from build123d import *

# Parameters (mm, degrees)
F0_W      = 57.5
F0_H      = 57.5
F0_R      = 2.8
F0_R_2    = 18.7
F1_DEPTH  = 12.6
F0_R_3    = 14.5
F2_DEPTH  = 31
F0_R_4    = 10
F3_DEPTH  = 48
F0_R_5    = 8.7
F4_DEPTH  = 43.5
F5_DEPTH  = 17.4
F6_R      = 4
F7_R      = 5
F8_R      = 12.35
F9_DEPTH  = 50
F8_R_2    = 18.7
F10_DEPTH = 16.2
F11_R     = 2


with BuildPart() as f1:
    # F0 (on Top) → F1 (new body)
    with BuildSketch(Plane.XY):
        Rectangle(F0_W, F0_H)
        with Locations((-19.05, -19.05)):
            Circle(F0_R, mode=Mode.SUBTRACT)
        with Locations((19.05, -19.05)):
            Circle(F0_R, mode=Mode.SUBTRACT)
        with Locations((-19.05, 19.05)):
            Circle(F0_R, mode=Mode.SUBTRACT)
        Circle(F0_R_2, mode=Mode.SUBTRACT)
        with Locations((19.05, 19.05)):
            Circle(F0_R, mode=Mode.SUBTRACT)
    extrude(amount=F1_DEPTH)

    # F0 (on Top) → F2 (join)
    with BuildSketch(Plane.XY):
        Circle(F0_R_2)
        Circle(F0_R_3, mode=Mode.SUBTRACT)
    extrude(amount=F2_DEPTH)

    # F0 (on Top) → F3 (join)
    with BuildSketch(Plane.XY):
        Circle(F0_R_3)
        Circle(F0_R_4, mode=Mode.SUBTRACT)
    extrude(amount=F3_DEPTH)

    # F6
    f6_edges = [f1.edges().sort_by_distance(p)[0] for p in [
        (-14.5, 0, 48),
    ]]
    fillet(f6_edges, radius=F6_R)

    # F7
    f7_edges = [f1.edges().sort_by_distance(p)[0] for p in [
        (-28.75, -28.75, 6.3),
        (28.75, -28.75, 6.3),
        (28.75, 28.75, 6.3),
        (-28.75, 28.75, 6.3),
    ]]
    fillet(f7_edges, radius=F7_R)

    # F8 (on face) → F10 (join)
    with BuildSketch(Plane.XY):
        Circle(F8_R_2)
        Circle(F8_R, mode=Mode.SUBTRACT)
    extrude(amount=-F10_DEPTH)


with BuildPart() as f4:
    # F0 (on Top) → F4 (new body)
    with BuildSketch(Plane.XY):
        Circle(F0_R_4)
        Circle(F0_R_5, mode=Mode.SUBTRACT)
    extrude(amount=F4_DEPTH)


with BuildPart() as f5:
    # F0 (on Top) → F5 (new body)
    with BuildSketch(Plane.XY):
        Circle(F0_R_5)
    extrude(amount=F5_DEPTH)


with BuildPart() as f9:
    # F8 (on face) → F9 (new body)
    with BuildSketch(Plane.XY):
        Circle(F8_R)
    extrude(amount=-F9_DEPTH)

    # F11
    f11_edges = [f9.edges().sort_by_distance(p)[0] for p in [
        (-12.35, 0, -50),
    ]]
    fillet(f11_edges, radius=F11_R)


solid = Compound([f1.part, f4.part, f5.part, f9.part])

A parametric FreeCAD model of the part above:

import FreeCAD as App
import Part
import Sketcher

V = App.Vector
Q = App.Units.Quantity


def edges_at(feature, points):
    """Names of the edges that pass closest to the given points."""
    edges = feature.Shape.Edges
    near = lambda p: min(range(len(edges)), key=lambda i: edges[i].distToShape(Part.Vertex(*p))[0])
    return sorted({f"Edge{near(p) + 1}" for p in points})


def add_polygon(sketch, points):
    """Adds a closed chain of lines whose ends are joined by coincident constraints."""
    first, n = sketch.GeometryCount, len(points)
    for a, b in zip(points, points[1:] + points[:1]):
        sketch.addGeometry(Part.LineSegment(App.Vector(*a, 0), App.Vector(*b, 0)), False)
    for i in range(n):
        sketch.addConstraint(Sketcher.Constraint("Coincident", first + i, 2, first + (i + 1) % n, 1))

doc = App.newDocument("Part")
body = doc.addObject("PartDesign::Body", "Body")

sketch1 = doc.addObject("Sketcher::SketchObject", "Sketch")
body.addObject(sketch1)
sketch1.AttachmentSupport = (doc.XY_Plane, [""])
sketch1.MapMode = "FlatFace"
add_polygon(sketch1, [(-28.8, 28.8), (-28.8, -28.8), (28.8, -28.8), (28.8, 28.8)])
sketch1.addGeometry(Part.Circle(V(-19.1, -19.1, 0), V(0, 0, 1), 2.8), False)
sketch1.addGeometry(Part.Circle(V(19.1, -19.1, 0), V(0, 0, 1), 2.8), False)
sketch1.addGeometry(Part.Circle(V(-19.1, 19.1, 0), V(0, 0, 1), 2.8), False)
sketch1.addGeometry(Part.Circle(V(0, 0, 0), V(0, 0, 1), 18.7), False)
sketch1.addGeometry(Part.Circle(V(19.1, 19.1, 0), V(0, 0, 1), 2.8), False)
sketch1.addConstraint(Sketcher.Constraint("Vertical", 0))
sketch1.addConstraint(Sketcher.Constraint("Horizontal", 1))
sketch1.addConstraint(Sketcher.Constraint("Vertical", 2))
sketch1.addConstraint(Sketcher.Constraint("Horizontal", 3))
sketch1.addConstraint(Sketcher.Constraint("Coincident", 7, 3, -1, 1))
sketch1.addConstraint(Sketcher.Constraint("Equal", 4, 5))
sketch1.addConstraint(Sketcher.Constraint("Equal", 5, 6))
sketch1.addConstraint(Sketcher.Constraint("Equal", 6, 8))
sketch1.addConstraint(Sketcher.Constraint("Symmetric", 5, 3, 6, 3, -1, 1))
sketch1.addConstraint(Sketcher.Constraint("Symmetric", 4, 3, 8, 3, -1, 1))
sketch1.addConstraint(Sketcher.Constraint("Symmetric", 0, 2, 2, 2, -1, 1))
sketch1.addConstraint(Sketcher.Constraint("Symmetric", 4, 3, 5, 3, -2))
sketch1.addConstraint(Sketcher.Constraint("Equal", 3, 0))
sketch1.addConstraint(Sketcher.Constraint("Diameter", 4, Q("5.6 mm")))
sketch1.addConstraint(Sketcher.Constraint("Diameter", 7, Q("37.4 mm")))
sketch1.addConstraint(Sketcher.Constraint("DistanceX", 1, 1, 1, 2, Q("57.5 mm")))
sketch1.addConstraint(Sketcher.Constraint("DistanceX", 4, 3, 5, 3, Q("38.1 mm")))
sketch1.addConstraint(Sketcher.Constraint("DistanceY", 4, 3, 6, 3, Q("38.1 mm")))
pad1 = doc.addObject("PartDesign::Pad", "Pad")
body.addObject(pad1)
pad1.Profile = sketch1
pad1.Length = 12.6

sketch2 = doc.addObject("Sketcher::SketchObject", "Sketch001")
body.addObject(sketch2)
sketch2.AttachmentSupport = (doc.XY_Plane, [""])
sketch2.MapMode = "FlatFace"
sketch2.addGeometry(Part.Circle(V(0, 0, 0), V(0, 0, 1), 19), False)
sketch2.addGeometry(Part.Circle(V(0, 0, 0), V(0, 0, 1), 14), False)
sketch2.addConstraint(Sketcher.Constraint("Coincident", 0, 3, -1, 1))
sketch2.addConstraint(Sketcher.Constraint("Coincident", 1, 3, -1, 1))
sketch2.addConstraint(Sketcher.Constraint("Diameter", 1, Q("29 mm")))
sketch2.addConstraint(Sketcher.Constraint("Diameter", 0, Q("37.4 mm")))
pad2 = doc.addObject("PartDesign::Pad", "Pad001")
body.addObject(pad2)
pad2.Profile = sketch2
pad2.Length = 31

sketch3 = doc.addObject("Sketcher::SketchObject", "Sketch002")
body.addObject(sketch3)
sketch3.AttachmentSupport = (doc.XY_Plane, [""])
sketch3.MapMode = "FlatFace"
sketch3.addGeometry(Part.Circle(V(0, 0, 0), V(0, 0, 1), 14), False)
sketch3.addGeometry(Part.Circle(V(0, 0, 0), V(0, 0, 1), 10), False)
sketch3.addConstraint(Sketcher.Constraint("Coincident", 0, 3, -1, 1))
sketch3.addConstraint(Sketcher.Constraint("Coincident", 1, 3, -1, 1))
sketch3.addConstraint(Sketcher.Constraint("Diameter", 0, Q("29 mm")))
sketch3.addConstraint(Sketcher.Constraint("Diameter", 1, Q("20 mm")))
pad3 = doc.addObject("PartDesign::Pad", "Pad002")
body.addObject(pad3)
pad3.Profile = sketch3
pad3.Length = 48
doc.recompute()

fillet = doc.addObject("PartDesign::Fillet", "Fillet")
body.addObject(fillet)
fillet.Base = (pad3, edges_at(pad3, [(-14.5, 0, 48)]))
fillet.Radius = 4
doc.recompute()

fillet2 = doc.addObject("PartDesign::Fillet", "Fillet001")
body.addObject(fillet2)
fillet2.Base = (fillet, edges_at(fillet, [
    (-28.75, -28.75, 6.3),
    (28.75, -28.75, 6.3),
    (28.75, 28.75, 6.3),
    (-28.75, 28.75, 6.3),
]))
fillet2.Radius = 5

sketch4 = doc.addObject("Sketcher::SketchObject", "Sketch003")
body.addObject(sketch4)
sketch4.AttachmentSupport = (doc.XY_Plane, [""])
sketch4.MapMode = "FlatFace"
sketch4.addGeometry(Part.Circle(V(0, 0, 0), V(0, 0, 1), 19), False)
sketch4.addGeometry(Part.Circle(V(0, 0, 0), V(0, 0, 1), 12), False)
sketch4.addConstraint(Sketcher.Constraint("Coincident", 0, 3, -1, 1))
sketch4.addConstraint(Sketcher.Constraint("Coincident", 1, 3, -1, 1))
sketch4.addConstraint(Sketcher.Constraint("Diameter", 0, Q("37.4 mm")))
sketch4.addConstraint(Sketcher.Constraint("Diameter", 1, Q("24.7 mm")))
pad4 = doc.addObject("PartDesign::Pad", "Pad003")
body.addObject(pad4)
pad4.Profile = sketch4
pad4.Length = 16.2
pad4.Reversed = True
body2 = doc.addObject("PartDesign::Body", "Body001")

sketch5 = doc.addObject("Sketcher::SketchObject", "Sketch004")
body2.addObject(sketch5)
sketch5.AttachmentSupport = (doc.getObject("XY_Plane001"), [""])
sketch5.MapMode = "FlatFace"
sketch5.addGeometry(Part.Circle(V(0, 0, 0), V(0, 0, 1), 10), False)
sketch5.addGeometry(Part.Circle(V(0, 0, 0), V(0, 0, 1), 9), False)
sketch5.addConstraint(Sketcher.Constraint("Coincident", 0, 3, -1, 1))
sketch5.addConstraint(Sketcher.Constraint("Coincident", 1, 3, -1, 1))
sketch5.addConstraint(Sketcher.Constraint("Diameter", 0, Q("20 mm")))
sketch5.addConstraint(Sketcher.Constraint("Diameter", 1, Q("17.4 mm")))
pad5 = doc.addObject("PartDesign::Pad", "Pad004")
body2.addObject(pad5)
pad5.Profile = sketch5
pad5.Length = 43.5
body3 = doc.addObject("PartDesign::Body", "Body002")

sketch6 = doc.addObject("Sketcher::SketchObject", "Sketch005")
body3.addObject(sketch6)
sketch6.AttachmentSupport = (doc.getObject("XY_Plane002"), [""])
sketch6.MapMode = "FlatFace"
sketch6.addGeometry(Part.Circle(V(0, 0, 0), V(0, 0, 1), 9), False)
sketch6.addConstraint(Sketcher.Constraint("Coincident", 0, 3, -1, 1))
sketch6.addConstraint(Sketcher.Constraint("Diameter", 0, Q("17.4 mm")))
pad6 = doc.addObject("PartDesign::Pad", "Pad005")
body3.addObject(pad6)
pad6.Profile = sketch6
pad6.Length = 17.4
body4 = doc.addObject("PartDesign::Body", "Body003")

sketch7 = doc.addObject("Sketcher::SketchObject", "Sketch006")
body4.addObject(sketch7)
sketch7.AttachmentSupport = (doc.getObject("XY_Plane003"), [""])
sketch7.MapMode = "FlatFace"
sketch7.addGeometry(Part.Circle(V(0, 0, 0), V(0, 0, 1), 12), False)
sketch7.addConstraint(Sketcher.Constraint("Coincident", 0, 3, -1, 1))
sketch7.addConstraint(Sketcher.Constraint("Diameter", 0, Q("24.7 mm")))
pad7 = doc.addObject("PartDesign::Pad", "Pad006")
body4.addObject(pad7)
pad7.Profile = sketch7
pad7.Length = 50
pad7.Reversed = True
doc.recompute()

fillet3 = doc.addObject("PartDesign::Fillet", "Fillet002")
body4.addObject(fillet3)
fillet3.Base = (pad7, edges_at(pad7, [(-12.35, 0, -50)]))
fillet3.Radius = 2

doc.recompute()
